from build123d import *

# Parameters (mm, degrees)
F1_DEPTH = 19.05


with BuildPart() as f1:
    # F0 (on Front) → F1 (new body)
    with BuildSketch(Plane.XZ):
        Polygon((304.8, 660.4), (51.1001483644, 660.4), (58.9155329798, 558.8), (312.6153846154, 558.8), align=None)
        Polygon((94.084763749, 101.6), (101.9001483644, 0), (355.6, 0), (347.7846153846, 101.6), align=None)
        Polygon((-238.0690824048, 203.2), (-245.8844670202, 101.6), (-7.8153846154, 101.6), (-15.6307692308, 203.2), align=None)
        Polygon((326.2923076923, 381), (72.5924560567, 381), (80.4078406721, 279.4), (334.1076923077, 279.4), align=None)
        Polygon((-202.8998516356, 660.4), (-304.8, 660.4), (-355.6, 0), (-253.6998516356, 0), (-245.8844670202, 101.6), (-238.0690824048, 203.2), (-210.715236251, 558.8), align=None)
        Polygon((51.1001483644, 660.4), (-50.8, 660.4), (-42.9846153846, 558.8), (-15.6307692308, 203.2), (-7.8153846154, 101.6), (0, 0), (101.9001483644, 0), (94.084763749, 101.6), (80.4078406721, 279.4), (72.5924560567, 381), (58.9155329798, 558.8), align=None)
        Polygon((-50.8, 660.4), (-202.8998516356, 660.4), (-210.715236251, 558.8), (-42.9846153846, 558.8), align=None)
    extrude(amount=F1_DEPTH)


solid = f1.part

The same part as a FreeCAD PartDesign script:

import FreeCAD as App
import Part
import Sketcher
from FreeCAD import Vector
Q = App.Units.Quantity


def add_polygon(sketch, points):
    """Adds a closed chain of lines whose ends are joined by coincident constraints."""
    first, n = sketch.GeometryCount, len(points)
    for a, b in zip(points, points[1:] + points[:1]):
        sketch.addGeometry(Part.LineSegment(App.Vector(*a, 0), App.Vector(*b, 0)), False)
    for i in range(n):
        sketch.addConstraint(Sketcher.Constraint("Coincident", first + i, 2, first + (i + 1) % n, 1))

doc = App.newDocument("Part")
body = doc.addObject("PartDesign::Body", "Body")

# Sketch on XZ plane
sketch1 = doc.addObject("Sketcher::SketchObject", "Sketch")
body.addObject(sketch1)
sketch1.AttachmentSupport = (doc.XZ_Plane, [""])
sketch1.MapMode = "FlatFace"
add_polygon(sketch1, [(305, 660), (-305, 660), (-356, 0), (-254, 0), (-246, 102), (-8, 102), (0, 0), (356, 0), (348, 102), (94, 102), (80, 279), (334, 279), (326, 381), (73, 381), (59, 559), (313, 559)])  # lines 0-15
add_polygon(sketch1, [(-43, 559), (-16, 203), (-238, 203), (-211, 559)])  # lines 16-19
sketch1.addConstraint([
    Sketcher.Constraint("Horizontal", 0),
    Sketcher.Constraint("Horizontal", 2),
    Sketcher.Constraint("Horizontal", 4),
    Sketcher.Constraint("Horizontal", 6),
    Sketcher.Constraint("Horizontal", 8),
    Sketcher.Constraint("Horizontal", 10),
    Sketcher.Constraint("Horizontal", 12),
    Sketcher.Constraint("Horizontal", 14),
    Sketcher.Constraint("Horizontal", 17),
    Sketcher.Constraint("Horizontal", 19),
    Sketcher.Constraint("Coincident", 5, 2, -1, 1),
    Sketcher.Constraint("Symmetric", 1, 2, 6, 2, -1, 1),
    Sketcher.Constraint("Parallel", 1, 3),
    Sketcher.Constraint("Parallel", 5, 7),
    Sketcher.Constraint("Parallel", 7, 9),
    Sketcher.Constraint("Parallel", 9, 11),
    Sketcher.Constraint("Parallel", 11, 13),
    Sketcher.Constraint("Parallel", 13, 15),
    Sketcher.Constraint("Parallel", 15, 16),
    Sketcher.Constraint("Parallel", 3, 18),
    Sketcher.Constraint("Horizontal", 4, 2, 7, 2),
    Sketcher.Constraint("Horizontal", 14, 2, 18, 2),
    Sketcher.Constraint("Equal", 8, 10),
    Sketcher.Constraint("Equal", 10, 12),
    Sketcher.Constraint("Equal", 12, 14),
    Sketcher.Constraint("Equal", 3, 5),
    Sketcher.Constraint("Equal", 7, 11),
    Sketcher.Constraint("Equal", 9, 13),
    Sketcher.Constraint("Equal", 11, 15),
    Sketcher.Constraint("DistanceX", 0, 2, 0, 1, Q("24 in")),
    Sketcher.Constraint("DistanceX", 6, 1, 6, 2, Q("14 in")),
    Sketcher.Constraint("DistanceY", -1, 1, 0, 2, Q("26 in")),
    Sketcher.Constraint("DistanceY", -1, 1, 3, 2, Q("4 in")),
    Sketcher.Constraint("DistanceY", -1, 1, 16, 2, Q("8 in")),
    Sketcher.Constraint("DistanceX", 2, 1, 2, 2, Q("101.900148 mm")),
    Sketcher.Constraint("DistanceX", 8, 2, 8, 1, Q("253.699852 mm")),
    Sketcher.Constraint("DistanceX", 19, 1, 19, 2, Q("167.730621 mm")),
    Sketcher.Constraint("DistanceX", 16, 2, -1, 1, Q("15.630769 mm")),
])
pad1 = doc.addObject("PartDesign::Pad", "Pad")
body.addObject(pad1)
pad1.Profile = sketch1
pad1.Length = Q("0.75 in")

doc.recompute()
